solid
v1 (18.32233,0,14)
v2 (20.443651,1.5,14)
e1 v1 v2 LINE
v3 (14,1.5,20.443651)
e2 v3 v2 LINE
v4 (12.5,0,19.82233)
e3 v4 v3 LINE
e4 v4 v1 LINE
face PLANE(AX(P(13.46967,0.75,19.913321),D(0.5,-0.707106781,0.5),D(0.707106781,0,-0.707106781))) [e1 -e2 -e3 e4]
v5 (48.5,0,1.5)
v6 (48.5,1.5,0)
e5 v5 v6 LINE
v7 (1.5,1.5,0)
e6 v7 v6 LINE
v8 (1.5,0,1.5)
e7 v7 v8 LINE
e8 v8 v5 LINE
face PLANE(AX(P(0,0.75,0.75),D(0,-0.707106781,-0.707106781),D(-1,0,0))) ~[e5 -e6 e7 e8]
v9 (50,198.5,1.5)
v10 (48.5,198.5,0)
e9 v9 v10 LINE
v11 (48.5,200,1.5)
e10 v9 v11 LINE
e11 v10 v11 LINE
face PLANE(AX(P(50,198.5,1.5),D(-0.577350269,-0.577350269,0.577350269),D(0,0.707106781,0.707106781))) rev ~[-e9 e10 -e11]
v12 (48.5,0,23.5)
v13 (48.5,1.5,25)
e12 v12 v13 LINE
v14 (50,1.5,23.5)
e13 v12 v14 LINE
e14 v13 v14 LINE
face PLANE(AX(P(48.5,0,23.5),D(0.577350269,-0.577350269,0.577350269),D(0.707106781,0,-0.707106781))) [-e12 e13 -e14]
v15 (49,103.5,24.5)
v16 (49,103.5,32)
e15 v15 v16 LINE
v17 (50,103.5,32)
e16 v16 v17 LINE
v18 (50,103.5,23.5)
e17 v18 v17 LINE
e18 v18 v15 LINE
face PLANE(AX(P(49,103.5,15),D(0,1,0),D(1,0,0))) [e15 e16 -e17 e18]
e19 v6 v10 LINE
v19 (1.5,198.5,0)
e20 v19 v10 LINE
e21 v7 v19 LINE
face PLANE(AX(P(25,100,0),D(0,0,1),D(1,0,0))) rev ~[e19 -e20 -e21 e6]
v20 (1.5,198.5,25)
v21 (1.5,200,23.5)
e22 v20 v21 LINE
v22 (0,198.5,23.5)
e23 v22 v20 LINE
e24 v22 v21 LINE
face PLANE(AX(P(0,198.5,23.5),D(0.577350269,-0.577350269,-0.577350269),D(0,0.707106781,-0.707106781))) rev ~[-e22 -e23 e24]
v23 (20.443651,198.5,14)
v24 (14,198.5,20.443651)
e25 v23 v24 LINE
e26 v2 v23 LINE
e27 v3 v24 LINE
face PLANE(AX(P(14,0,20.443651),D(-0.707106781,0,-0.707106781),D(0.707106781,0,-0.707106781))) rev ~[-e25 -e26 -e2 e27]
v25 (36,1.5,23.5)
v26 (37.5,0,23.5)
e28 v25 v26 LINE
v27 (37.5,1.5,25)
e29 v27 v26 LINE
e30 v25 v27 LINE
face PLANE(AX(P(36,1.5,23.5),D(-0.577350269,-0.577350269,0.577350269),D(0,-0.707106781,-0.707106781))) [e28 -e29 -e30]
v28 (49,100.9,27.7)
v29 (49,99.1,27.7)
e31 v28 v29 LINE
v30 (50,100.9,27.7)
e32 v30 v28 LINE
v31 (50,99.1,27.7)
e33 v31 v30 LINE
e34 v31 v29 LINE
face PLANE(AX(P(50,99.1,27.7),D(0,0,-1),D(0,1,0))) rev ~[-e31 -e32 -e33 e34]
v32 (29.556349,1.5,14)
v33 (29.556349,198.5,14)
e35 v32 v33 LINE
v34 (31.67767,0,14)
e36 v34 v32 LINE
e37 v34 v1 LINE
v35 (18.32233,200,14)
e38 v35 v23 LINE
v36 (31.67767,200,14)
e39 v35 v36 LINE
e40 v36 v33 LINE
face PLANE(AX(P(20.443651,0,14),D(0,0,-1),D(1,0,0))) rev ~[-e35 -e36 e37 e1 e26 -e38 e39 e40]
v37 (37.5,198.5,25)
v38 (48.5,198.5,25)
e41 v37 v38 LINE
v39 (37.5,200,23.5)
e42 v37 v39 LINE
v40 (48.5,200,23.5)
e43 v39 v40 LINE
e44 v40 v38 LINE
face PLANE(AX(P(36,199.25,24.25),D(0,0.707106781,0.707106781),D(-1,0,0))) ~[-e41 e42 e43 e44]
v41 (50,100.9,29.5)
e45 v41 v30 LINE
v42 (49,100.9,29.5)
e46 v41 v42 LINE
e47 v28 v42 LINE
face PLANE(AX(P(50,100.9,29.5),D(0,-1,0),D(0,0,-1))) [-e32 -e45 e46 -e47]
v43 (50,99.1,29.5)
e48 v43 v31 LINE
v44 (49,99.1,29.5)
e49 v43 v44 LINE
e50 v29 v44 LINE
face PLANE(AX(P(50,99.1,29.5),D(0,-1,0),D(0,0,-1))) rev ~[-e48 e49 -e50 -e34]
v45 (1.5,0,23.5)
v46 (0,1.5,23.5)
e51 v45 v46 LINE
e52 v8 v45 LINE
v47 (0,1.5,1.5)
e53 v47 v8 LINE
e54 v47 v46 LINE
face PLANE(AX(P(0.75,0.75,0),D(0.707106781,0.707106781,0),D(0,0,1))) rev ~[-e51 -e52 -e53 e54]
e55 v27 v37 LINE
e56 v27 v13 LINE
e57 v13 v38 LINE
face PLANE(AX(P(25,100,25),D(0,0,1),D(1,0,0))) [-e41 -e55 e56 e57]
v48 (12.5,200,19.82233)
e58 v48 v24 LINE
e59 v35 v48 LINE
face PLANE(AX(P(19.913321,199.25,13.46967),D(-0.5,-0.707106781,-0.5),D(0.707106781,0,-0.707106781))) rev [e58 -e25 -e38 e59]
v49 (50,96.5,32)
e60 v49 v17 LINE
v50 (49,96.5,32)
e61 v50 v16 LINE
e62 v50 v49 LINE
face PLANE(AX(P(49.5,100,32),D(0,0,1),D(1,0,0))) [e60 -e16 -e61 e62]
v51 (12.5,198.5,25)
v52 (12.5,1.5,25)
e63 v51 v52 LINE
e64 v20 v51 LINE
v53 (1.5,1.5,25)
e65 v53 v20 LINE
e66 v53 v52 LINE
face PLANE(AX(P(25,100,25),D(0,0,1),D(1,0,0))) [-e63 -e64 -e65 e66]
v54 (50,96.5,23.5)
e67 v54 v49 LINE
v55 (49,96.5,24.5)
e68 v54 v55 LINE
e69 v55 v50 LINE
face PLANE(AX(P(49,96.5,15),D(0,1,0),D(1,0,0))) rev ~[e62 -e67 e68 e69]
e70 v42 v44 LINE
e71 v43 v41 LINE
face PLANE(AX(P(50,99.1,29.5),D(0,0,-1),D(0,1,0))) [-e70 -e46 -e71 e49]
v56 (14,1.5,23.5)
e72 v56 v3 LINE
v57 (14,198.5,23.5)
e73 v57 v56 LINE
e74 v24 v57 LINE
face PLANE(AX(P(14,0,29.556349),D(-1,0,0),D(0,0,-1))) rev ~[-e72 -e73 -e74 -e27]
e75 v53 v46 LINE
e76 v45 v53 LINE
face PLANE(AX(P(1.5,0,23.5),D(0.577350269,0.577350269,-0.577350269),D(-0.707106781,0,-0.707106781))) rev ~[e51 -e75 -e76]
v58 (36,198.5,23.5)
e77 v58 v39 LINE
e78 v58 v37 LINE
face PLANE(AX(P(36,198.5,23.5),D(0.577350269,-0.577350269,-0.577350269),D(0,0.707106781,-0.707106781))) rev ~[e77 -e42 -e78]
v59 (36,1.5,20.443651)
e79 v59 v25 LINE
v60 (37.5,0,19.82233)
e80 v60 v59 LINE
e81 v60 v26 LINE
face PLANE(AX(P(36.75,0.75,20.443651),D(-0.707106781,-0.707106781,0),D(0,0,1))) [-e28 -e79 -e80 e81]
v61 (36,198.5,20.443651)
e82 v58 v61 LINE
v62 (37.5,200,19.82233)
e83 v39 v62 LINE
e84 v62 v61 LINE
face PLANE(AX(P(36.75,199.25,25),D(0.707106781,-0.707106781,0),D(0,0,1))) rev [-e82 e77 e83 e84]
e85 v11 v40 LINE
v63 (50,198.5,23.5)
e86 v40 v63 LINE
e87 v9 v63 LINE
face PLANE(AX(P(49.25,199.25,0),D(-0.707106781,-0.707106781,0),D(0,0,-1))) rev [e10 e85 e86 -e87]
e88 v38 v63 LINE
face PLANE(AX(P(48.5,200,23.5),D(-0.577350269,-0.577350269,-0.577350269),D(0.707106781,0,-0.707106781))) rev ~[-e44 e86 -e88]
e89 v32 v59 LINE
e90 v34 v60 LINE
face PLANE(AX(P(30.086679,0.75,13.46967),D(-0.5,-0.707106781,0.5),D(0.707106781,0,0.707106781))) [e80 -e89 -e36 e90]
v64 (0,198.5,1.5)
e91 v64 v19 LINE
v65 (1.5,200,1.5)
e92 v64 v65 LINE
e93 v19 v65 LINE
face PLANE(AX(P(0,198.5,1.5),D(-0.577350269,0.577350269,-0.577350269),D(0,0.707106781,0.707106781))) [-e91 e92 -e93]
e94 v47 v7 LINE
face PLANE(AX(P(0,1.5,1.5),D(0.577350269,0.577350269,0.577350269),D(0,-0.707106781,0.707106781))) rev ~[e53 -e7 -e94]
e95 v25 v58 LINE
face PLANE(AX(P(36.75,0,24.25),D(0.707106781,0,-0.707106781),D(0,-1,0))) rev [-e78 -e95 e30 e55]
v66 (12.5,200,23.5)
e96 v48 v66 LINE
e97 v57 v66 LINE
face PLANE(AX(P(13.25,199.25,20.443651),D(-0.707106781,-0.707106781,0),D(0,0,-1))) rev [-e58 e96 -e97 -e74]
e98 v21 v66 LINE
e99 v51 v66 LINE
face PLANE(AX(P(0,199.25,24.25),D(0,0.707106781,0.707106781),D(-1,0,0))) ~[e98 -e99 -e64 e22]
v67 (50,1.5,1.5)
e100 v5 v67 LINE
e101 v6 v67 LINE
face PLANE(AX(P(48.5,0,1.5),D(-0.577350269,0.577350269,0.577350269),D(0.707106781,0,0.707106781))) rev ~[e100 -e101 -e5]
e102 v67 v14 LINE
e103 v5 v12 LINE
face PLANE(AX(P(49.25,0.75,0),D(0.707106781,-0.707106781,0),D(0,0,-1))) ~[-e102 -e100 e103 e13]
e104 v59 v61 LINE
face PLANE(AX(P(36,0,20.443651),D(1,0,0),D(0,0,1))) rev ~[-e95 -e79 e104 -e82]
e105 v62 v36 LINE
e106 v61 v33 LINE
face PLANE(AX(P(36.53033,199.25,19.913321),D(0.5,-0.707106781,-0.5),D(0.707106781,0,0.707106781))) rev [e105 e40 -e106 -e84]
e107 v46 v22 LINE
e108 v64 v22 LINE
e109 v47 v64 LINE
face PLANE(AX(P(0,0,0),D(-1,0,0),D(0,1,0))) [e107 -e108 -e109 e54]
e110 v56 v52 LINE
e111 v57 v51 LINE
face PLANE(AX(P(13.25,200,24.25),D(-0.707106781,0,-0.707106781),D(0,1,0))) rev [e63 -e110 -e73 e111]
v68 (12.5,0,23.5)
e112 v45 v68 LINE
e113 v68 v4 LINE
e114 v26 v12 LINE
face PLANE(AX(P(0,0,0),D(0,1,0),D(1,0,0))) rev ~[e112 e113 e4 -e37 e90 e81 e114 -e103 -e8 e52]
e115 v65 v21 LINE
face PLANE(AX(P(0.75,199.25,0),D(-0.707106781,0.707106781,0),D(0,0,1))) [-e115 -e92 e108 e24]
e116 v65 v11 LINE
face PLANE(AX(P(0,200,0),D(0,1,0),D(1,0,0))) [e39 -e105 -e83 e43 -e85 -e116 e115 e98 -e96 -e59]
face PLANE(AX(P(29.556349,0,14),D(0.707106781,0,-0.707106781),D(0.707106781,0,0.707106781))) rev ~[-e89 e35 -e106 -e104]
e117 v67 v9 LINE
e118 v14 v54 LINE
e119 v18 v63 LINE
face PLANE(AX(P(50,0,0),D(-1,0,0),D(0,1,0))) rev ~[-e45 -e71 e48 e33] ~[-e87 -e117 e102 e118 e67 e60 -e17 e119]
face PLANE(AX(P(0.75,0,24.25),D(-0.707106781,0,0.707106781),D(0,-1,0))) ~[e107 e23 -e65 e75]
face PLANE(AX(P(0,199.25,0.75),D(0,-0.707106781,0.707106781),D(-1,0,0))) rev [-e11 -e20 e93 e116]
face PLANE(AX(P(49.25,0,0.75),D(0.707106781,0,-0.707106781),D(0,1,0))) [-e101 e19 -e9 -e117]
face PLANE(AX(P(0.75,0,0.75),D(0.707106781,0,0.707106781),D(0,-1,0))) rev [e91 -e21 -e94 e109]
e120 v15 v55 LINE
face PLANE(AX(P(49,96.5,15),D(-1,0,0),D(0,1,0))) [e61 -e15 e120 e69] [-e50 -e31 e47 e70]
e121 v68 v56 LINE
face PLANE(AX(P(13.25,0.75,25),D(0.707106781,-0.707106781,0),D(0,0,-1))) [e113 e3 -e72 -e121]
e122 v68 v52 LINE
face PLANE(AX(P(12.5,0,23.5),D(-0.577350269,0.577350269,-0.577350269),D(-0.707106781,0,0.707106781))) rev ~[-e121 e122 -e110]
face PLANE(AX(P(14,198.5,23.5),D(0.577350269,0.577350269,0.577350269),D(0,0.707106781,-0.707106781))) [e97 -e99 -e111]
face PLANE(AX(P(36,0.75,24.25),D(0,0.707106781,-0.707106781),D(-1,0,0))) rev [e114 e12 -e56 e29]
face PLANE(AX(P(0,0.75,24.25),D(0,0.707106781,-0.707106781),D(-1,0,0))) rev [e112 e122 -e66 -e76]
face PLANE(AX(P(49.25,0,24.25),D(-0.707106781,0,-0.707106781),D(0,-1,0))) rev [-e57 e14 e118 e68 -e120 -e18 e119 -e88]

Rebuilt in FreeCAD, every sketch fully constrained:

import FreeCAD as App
import Part
import Sketcher
from FreeCAD import Vector


def edges_at(feature, points):
    """Names of the edges that pass closest to the given points."""
    edges = feature.Shape.Edges
    near = lambda p: min(range(len(edges)), key=lambda i: edges[i].distToShape(Part.Vertex(*p))[0])
    return sorted({f"Edge{near(p) + 1}" for p in points})


def add_polygon(sketch, points):
    """Adds a closed chain of lines whose ends are joined by coincident constraints."""
    first, n = sketch.GeometryCount, len(points)
    for a, b in zip(points, points[1:] + points[:1]):
        sketch.addGeometry(Part.LineSegment(App.Vector(*a, 0), App.Vector(*b, 0)), False)
    for i in range(n):
        sketch.addConstraint(Sketcher.Constraint("Coincident", first + i, 2, first + (i + 1) % n, 1))

doc = App.newDocument("Part")
params = doc.addObject("Spreadsheet::Sheet", "Params")
for row, (alias, value) in enumerate([
    ("sketch1_width", "50 mm"),
    ("sketch1_height", "200 mm"),
    ("pad1_length", "25 mm"),
    ("chamfer_size", "1.5 mm"),
    ("sketch3_width", "1 mm"),
    ("sketch3_height", "7 mm"),
    ("pad2_length", "7 mm"),
    ("pad2_length2", "10 mm"),
    ("sketch4_width", "1.8 mm"),
    ("pocket2_length", "7 mm"),
], start=1):
    params.set(f"A{row}", alias)
    params.set(f"B{row}", "=" + value)
    params.setAlias(f"B{row}", alias)

body = doc.addObject("PartDesign::Body", "Body")

# Sketch on XY plane
sketch1 = body.newObject("Sketcher::SketchObject", "Sketch")
sketch1.AttachmentSupport = (doc.getObject("XY_Plane"), [""])
sketch1.MapMode = "FlatFace"
add_polygon(sketch1, [(0, 200), (0, 0), (50, 0), (50, 200)])  # lines 0-3
sketch1.addConstraint(Sketcher.Constraint("Vertical", 0))
sketch1.addConstraint(Sketcher.Constraint("Horizontal", 1))
sketch1.addConstraint(Sketcher.Constraint("Vertical", 2))
sketch1.addConstraint(Sketcher.Constraint("Horizontal", 3))
sketch1.addConstraint(Sketcher.Constraint("Coincident", 0, 2, -1, 1))
sketch1.addConstraint(Sketcher.Constraint("DistanceX", 1, 1, 1, 2, 50.0))
sketch1.addConstraint(Sketcher.Constraint("DistanceY", 0, 2, 0, 1, 200.0))
sketch1.setExpression("Constraints[9]", "Params.sketch1_width")
sketch1.setExpression("Constraints[10]", "Params.sketch1_height")
pad1 = body.newObject("PartDesign::Pad", "Pad")
pad1.Profile = sketch1
pad1.setExpression("Length", "Params.pad1_length")

# Sketch on XZ plane
sketch2 = body.newObject("Sketcher::SketchObject", "Sketch001")
sketch2.AttachmentSupport = (doc.getObject("XZ_Plane"), [""])
sketch2.MapMode = "FlatFace"
add_polygon(sketch2, [(30, 36), (20, 36), (14, 30), (14, 20), (20, 14), (30, 14), (36, 20), (36, 30)])  # lines 0-7
sketch2.addConstraint(Sketcher.Constraint("Horizontal", 0))
sketch2.addConstraint(Sketcher.Constraint("Vertical", 2))
sketch2.addConstraint(Sketcher.Constraint("Horizontal", 4))
sketch2.addConstraint(Sketcher.Constraint("Vertical", 6))
sketch2.addConstraint(Sketcher.Constraint("Perpendicular", 1, 3))
sketch2.addConstraint(Sketcher.Constraint("Perpendicular", 3, 5))
sketch2.addConstraint(Sketcher.Constraint("Perpendicular", 5, 7))
sketch2.addConstraint(Sketcher.Constraint("Horizontal", 2, 2, 5, 2))
sketch2.addConstraint(Sketcher.Constraint("Horizontal", 1, 2, 6, 2))
sketch2.addConstraint(Sketcher.Constraint("Vertical", 0, 2, 3, 2))
sketch2.addConstraint(Sketcher.Constraint("Vertical", 4, 2, 7, 2))
sketch2.addConstraint(Sketcher.Constraint("Equal", 4, 2))
sketch2.addConstraint(Sketcher.Constraint("DistanceY", -1, 1, 0, 2, 36.0))
sketch2.addConstraint(Sketcher.Constraint("DistanceX", -1, 1, 1, 2, 14.0))
sketch2.addConstraint(Sketcher.Constraint("DistanceY", -1, 1, 3, 2, 14.0))
sketch2.addConstraint(Sketcher.Constraint("DistanceX", 0, 2, 0, 1, 9.112698))
pocket1 = body.newObject("PartDesign::Pocket", "Pocket")
pocket1.Profile = sketch2
pocket1.Type = "ThroughAll"
doc.recompute()

chamfer = body.newObject("PartDesign::Chamfer", "Chamfer")
chamfer.Base = (pocket1, edges_at(pocket1, [
    (50, 100, 25),
    (43, 200, 25),
    (43, 0, 25),
    (7, 200, 25),
    (14, 100, 25),
    (36, 100, 25),
    (36, 200, 22.722),
    (14, 200, 22.722),
    (36, 0, 22.722),
    (14, 0, 22.722),
    (17.222, 0, 17.222),
    (32.778, 0, 17.222),
    (32.778, 200, 17.222),
    (17.222, 200, 17.222),
    (0, 100, 25),
    (25, 200, 0),
    (50, 100, 0),
    (25, 0, 0),
    (0, 100, 0),
    (7, 0, 25),
    (0, 200, 12.5),
    (50, 200, 12.5),
    (50, 0, 12.5),
    (0, 0, 12.5),
]))
chamfer.setExpression("Size", "Params.chamfer_size")

# Sketch on XY plane
sketch3 = body.newObject("Sketcher::SketchObject", "Sketch002")
sketch3.AttachmentSupport = (doc.getObject("XY_Plane"), [""])
sketch3.MapMode = "FlatFace"
sketch3.AttachmentOffset = App.Placement(Vector(0, 0, 25), App.Rotation())
add_polygon(sketch3, [(49, 103.5), (49, 96.5), (50, 96.5), (50, 103.5)])  # lines 0-3
sketch3.addConstraint(Sketcher.Constraint("Vertical", 0))
sketch3.addConstraint(Sketcher.Constraint("Horizontal", 1))
sketch3.addConstraint(Sketcher.Constraint("Vertical", 2))
sketch3.addConstraint(Sketcher.Constraint("Horizontal", 3))
sketch3.addConstraint(Sketcher.Constraint("DistanceX", 1, 1, 1, 2, 1.0))
sketch3.addConstraint(Sketcher.Constraint("DistanceY", 0, 2, 0, 1, 7.0))
sketch3.addConstraint(Sketcher.Constraint("DistanceX", -1, 1, 0, 2, 49.0))
sketch3.addConstraint(Sketcher.Constraint("DistanceY", -1, 1, 0, 2, 96.5))
sketch3.setExpression("Constraints[8]", "Params.sketch3_width")
sketch3.setExpression("Constraints[9]", "Params.sketch3_height")
pad2 = body.newObject("PartDesign::Pad", "Pad001")
pad2.Profile = sketch3
pad2.Type = "TwoLengths"
pad2.setExpression("Length", "Params.pad2_length")
pad2.setExpression("Length2", "Params.pad2_length2")

# Sketch on YZ plane
sketch4 = body.newObject("Sketcher::SketchObject", "Sketch003")
sketch4.AttachmentSupport = (doc.getObject("YZ_Plane"), [""])
sketch4.MapMode = "FlatFace"
sketch4.AttachmentOffset = App.Placement(Vector(0, 0, 50), App.Rotation())
add_polygon(sketch4, [(100.9, 29.5), (99.1, 29.5), (99.1, 27.7), (100.9, 27.7)])  # lines 0-3
sketch4.addConstraint(Sketcher.Constraint("Horizontal", 0))
sketch4.addConstraint(Sketcher.Constraint("Vertical", 1))
sketch4.addConstraint(Sketcher.Constraint("Horizontal", 2))
sketch4.addConstraint(Sketcher.Constraint("Vertical", 3))
sketch4.addConstraint(Sketcher.Constraint("Equal", 2, 1))
sketch4.addConstraint(Sketcher.Constraint("DistanceX", 0, 2, 0, 1, 1.8))
sketch4.addConstraint(Sketcher.Constraint("DistanceX", -1, 1, 0, 2, 99.1))
sketch4.addConstraint(Sketcher.Constraint("DistanceY", -1, 1, 0, 2, 29.5))
sketch4.setExpression("Constraints[9]", "Params.sketch4_width")
pocket2 = body.newObject("PartDesign::Pocket", "Pocket001")
pocket2.Profile = sketch4
pocket2.setExpression("Length", "Params.pocket2_length")

doc.recompute()
